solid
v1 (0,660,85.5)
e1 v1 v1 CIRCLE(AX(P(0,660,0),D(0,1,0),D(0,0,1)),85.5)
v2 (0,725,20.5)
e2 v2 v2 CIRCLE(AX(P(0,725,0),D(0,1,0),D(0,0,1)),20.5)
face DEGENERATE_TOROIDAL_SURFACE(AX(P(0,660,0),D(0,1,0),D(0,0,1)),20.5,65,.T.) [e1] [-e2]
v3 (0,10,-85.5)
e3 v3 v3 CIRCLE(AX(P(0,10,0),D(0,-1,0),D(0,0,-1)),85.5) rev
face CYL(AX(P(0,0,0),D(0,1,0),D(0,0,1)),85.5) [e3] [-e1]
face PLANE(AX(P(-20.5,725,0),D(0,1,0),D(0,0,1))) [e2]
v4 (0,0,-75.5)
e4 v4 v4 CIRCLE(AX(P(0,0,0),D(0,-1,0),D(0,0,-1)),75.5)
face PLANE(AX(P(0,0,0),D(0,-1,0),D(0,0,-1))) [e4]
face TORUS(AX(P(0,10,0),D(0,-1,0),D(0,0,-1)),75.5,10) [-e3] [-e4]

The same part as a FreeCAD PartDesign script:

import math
import FreeCAD as App
import Part
import Sketcher
Q = App.Units.Quantity


def edges_at(feature, points):
    """Names of the edges that pass closest to the given points."""
    edges = feature.Shape.Edges
    near = lambda p: min(range(len(edges)), key=lambda i: edges[i].distToShape(Part.Vertex(*p))[0])
    return sorted({f"Edge{near(p) + 1}" for p in points})

doc = App.newDocument("Part")
body = doc.addObject("PartDesign::Body", "Body")

# Sketch on XY plane
sketch1 = body.newObject("Sketcher::SketchObject", "Sketch")
sketch1.AttachmentSupport = (doc.getObject("XY_Plane"), [""])
sketch1.MapMode = "FlatFace"
sketch1.addGeometry(Part.LineSegment(App.Vector(-86, 0, 0), App.Vector(0, 0, 0)), False)
sketch1.addGeometry(Part.LineSegment(App.Vector(0, 0, 0), App.Vector(0, 725, 0)), False)
sketch1.addGeometry(Part.LineSegment(App.Vector(0, 725, 0), App.Vector(-20, 725, 0)), False)
sketch1.addGeometry(Part.ArcOfCircle(Part.Circle(App.Vector(-20, 660, 0), App.Vector(0, 0, 1), 65), math.radians(90), math.radians(180)), False)
sketch1.addGeometry(Part.LineSegment(App.Vector(-86, 660, 0), App.Vector(-86, 0, 0)), False)
sketch1.addConstraint(Sketcher.Constraint("Coincident", 0, 2, 1, 1))
sketch1.addConstraint(Sketcher.Constraint("Coincident", 1, 2, 2, 1))
sketch1.addConstraint(Sketcher.Constraint("Tangent", 2, 2, 3, 1))
sketch1.addConstraint(Sketcher.Constraint("Tangent", 3, 2, 4, 1))
sketch1.addConstraint(Sketcher.Constraint("Coincident", 4, 2, 0, 1))
sketch1.addConstraint(Sketcher.Constraint("Horizontal", 0))
sketch1.addConstraint(Sketcher.Constraint("Vertical", 1))
sketch1.addConstraint(Sketcher.Constraint("Horizontal", 2))
sketch1.addConstraint(Sketcher.Constraint("Vertical", 4))
sketch1.addConstraint(Sketcher.Constraint("Coincident", 0, 2, -1, 1))
sketch1.addConstraint(Sketcher.Constraint("Radius", 3, Q("65 mm")))
sketch1.addConstraint(Sketcher.Constraint("DistanceY", 1, 1, 1, 2, Q("725 mm")))
sketch1.addConstraint(Sketcher.Constraint("DistanceX", 0, 1, 0, 2, Q("85.5 mm")))
revolution = body.newObject("PartDesign::Revolution", "Revolution")
revolution.Profile = sketch1
revolution.ReferenceAxis = (sketch1, ["V_Axis"])
revolution.Angle = 360
doc.recompute()

fillet = body.newObject("PartDesign::Fillet", "Fillet")
fillet.Base = (revolution, edges_at(revolution, [(0, 0, -85.5)]))
fillet.Radius = 10

doc.recompute()
